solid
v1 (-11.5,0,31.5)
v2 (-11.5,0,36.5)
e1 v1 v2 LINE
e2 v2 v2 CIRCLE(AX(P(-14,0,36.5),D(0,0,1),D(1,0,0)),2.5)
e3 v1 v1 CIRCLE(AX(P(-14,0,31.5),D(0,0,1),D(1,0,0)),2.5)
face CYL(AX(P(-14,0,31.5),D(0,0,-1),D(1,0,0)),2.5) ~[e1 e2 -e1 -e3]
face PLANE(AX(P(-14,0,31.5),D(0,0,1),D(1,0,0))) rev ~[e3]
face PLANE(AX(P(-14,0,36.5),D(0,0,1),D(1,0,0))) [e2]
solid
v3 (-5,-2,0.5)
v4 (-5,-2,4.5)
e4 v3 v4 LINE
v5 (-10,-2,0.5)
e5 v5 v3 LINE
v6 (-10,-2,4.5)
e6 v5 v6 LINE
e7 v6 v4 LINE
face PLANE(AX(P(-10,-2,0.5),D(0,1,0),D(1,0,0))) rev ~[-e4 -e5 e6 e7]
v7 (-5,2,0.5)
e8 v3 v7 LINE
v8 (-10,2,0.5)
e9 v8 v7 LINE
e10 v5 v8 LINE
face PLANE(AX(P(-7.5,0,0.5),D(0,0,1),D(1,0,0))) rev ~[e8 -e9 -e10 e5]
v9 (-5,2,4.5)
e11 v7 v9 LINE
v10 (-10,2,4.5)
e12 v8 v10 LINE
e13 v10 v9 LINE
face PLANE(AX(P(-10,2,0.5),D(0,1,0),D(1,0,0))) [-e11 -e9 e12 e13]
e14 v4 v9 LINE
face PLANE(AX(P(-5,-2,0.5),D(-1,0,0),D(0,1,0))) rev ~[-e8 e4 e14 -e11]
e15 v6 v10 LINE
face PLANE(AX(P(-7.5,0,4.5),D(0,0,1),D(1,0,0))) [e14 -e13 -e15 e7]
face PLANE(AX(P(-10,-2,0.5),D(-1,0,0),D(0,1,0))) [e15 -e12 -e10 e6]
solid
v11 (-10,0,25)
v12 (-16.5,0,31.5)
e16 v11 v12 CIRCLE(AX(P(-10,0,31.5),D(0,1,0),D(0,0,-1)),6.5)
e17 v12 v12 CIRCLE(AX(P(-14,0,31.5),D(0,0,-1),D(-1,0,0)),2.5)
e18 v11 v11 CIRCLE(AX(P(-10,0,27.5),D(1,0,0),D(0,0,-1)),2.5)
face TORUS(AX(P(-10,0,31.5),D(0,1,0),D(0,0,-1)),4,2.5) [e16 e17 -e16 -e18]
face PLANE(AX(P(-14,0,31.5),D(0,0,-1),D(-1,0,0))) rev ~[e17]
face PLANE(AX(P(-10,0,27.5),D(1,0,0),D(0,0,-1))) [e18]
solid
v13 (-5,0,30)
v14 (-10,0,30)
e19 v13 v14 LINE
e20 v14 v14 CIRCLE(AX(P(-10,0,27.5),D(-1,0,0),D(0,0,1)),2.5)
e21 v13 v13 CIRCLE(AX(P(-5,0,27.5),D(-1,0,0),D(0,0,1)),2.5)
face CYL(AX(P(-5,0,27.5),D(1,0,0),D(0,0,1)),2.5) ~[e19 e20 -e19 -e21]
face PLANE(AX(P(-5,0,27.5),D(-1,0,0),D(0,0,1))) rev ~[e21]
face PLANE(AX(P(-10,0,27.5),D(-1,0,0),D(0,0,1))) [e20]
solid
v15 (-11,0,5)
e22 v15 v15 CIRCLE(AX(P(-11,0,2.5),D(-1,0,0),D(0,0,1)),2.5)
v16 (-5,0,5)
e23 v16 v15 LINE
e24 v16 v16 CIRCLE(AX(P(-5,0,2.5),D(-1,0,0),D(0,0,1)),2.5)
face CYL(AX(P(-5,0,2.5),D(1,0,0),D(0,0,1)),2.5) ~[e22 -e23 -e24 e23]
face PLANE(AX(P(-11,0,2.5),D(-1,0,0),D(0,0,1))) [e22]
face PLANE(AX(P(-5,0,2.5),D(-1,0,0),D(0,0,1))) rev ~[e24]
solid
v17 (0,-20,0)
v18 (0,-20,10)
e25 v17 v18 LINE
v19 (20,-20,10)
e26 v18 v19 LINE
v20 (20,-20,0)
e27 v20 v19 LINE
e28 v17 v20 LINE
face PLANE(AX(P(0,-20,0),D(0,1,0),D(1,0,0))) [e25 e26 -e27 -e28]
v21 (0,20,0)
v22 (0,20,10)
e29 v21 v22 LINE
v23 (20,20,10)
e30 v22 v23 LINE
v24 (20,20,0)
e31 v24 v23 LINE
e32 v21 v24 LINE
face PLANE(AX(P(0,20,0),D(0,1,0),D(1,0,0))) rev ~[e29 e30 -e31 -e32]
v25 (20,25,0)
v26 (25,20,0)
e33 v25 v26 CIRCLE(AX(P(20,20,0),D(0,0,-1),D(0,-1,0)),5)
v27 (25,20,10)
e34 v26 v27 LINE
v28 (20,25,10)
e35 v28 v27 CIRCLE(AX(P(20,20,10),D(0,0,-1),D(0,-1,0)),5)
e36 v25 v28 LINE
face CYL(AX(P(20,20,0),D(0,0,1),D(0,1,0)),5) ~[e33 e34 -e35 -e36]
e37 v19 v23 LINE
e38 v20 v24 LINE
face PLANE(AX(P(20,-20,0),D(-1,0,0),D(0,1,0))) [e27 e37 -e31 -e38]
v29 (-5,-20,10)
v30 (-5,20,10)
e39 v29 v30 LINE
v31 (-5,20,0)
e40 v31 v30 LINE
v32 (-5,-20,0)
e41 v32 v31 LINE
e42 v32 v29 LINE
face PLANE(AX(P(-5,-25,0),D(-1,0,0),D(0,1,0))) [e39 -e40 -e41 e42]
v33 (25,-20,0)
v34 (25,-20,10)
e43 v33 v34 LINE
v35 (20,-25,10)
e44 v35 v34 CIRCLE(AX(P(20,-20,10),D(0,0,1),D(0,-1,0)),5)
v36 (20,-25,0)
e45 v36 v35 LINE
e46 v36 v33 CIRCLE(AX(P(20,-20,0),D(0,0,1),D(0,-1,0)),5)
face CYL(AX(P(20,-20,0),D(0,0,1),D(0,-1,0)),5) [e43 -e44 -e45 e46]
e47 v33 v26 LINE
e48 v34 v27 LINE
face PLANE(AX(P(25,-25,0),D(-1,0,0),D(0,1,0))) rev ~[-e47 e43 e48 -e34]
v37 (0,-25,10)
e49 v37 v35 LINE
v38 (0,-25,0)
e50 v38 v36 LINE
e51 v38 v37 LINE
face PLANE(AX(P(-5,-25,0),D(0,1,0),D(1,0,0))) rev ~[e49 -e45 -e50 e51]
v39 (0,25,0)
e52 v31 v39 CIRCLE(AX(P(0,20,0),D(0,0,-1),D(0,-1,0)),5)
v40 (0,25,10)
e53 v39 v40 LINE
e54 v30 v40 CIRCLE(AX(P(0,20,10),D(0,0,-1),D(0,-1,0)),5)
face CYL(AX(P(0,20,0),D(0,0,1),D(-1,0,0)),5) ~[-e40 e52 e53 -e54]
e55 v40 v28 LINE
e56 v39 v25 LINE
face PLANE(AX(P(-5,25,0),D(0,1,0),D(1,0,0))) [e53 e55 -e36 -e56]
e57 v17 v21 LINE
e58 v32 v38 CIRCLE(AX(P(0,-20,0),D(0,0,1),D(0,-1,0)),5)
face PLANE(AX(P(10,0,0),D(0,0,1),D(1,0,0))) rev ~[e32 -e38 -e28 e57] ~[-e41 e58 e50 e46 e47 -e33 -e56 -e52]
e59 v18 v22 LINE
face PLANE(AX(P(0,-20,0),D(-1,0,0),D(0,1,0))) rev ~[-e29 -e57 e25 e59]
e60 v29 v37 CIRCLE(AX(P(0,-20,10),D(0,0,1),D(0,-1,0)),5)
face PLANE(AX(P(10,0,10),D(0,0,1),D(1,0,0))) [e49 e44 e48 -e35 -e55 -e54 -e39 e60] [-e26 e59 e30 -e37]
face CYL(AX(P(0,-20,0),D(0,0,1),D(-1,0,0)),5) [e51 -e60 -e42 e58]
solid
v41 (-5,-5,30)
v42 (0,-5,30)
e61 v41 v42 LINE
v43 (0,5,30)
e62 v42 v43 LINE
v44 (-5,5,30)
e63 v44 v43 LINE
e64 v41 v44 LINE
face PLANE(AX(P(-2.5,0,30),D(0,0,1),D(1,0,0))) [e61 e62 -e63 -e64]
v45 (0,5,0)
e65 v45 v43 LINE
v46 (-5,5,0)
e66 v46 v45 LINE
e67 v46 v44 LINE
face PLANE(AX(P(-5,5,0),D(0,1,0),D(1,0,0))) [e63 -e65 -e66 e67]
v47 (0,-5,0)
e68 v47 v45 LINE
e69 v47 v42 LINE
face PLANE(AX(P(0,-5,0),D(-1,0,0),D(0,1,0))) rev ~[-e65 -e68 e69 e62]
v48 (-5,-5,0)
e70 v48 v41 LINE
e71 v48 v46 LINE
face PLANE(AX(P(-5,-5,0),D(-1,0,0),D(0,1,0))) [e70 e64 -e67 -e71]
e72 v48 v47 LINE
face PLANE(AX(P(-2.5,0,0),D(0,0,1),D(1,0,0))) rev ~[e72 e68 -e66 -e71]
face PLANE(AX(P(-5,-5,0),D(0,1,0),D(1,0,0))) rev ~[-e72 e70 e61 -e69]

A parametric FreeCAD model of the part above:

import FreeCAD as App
import Part
import Sketcher
Q = App.Units.Quantity


def edges_at(feature, points):
    """Names of the edges that pass closest to the given points."""
    edges = feature.Shape.Edges
    near = lambda p: min(range(len(edges)), key=lambda i: edges[i].distToShape(Part.Vertex(*p))[0])
    return sorted({f"Edge{near(p) + 1}" for p in points})


def add_polygon(sketch, points):
    """Adds a closed chain of lines whose ends are joined by coincident constraints."""
    first, n = sketch.GeometryCount, len(points)
    for a, b in zip(points, points[1:] + points[:1]):
        sketch.addGeometry(Part.LineSegment(App.Vector(*a, 0), App.Vector(*b, 0)), False)
    for i in range(n):
        sketch.addConstraint(Sketcher.Constraint("Coincident", first + i, 2, first + (i + 1) % n, 1))

doc = App.newDocument("Part")
params = doc.addObject("Spreadsheet::Sheet", "Params")
for row, (alias, value) in enumerate([
    ("sketch1_diameter", "5 mm"),
    ("pad1_length", "6 mm"),
    ("sketch2_width", "5 mm"),
    ("sketch2_height", "10 mm"),
    ("pad2_length", "30 mm"),
    ("sketch3_diameter", "5 mm"),
    ("pad3_length", "5 mm"),
    ("sketch4_diameter", "5 mm"),
    ("sketch4_width", "10 mm"),
    ("revolution_angle", "90 deg"),
    ("sketch5_diameter", "5 mm"),
    ("pad4_length", "5 mm"),
    ("sketch6_width", "5 mm"),
    ("sketch6_height", "4 mm"),
    ("pad5_length", "4 mm"),
    ("sketch7_width", "20 mm"),
    ("sketch7_height", "40 mm"),
    ("pad6_length", "10 mm"),
    ("sketch8_width", "30 mm"),
    ("sketch8_height", "50 mm"),
    ("pad7_length", "10 mm"),
    ("fillet_radius", "5 mm"),
], start=1):
    params.set(f"A{row}", alias)
    params.set(f"B{row}", "=" + value)
    params.setAlias(f"B{row}", alias)

body = doc.addObject("PartDesign::Body", "Body")

sketch1 = body.newObject("Sketcher::SketchObject", "Sketch")
sketch1.AttachmentSupport = (doc.getObject("XY_Plane"), [""])
sketch1.MapMode = "FlatFace"
sketch1.addGeometry(Part.Circle(App.Vector(0, 0, 0), App.Vector(0, 0, 1), 2.5), False)
sketch1.addConstraint([
    Sketcher.Constraint("Coincident", 0, 3, -1, 1),
    Sketcher.Constraint("Diameter", 0, Q("5 mm")),
])
sketch1.setExpression("Constraints[1]", "Params.sketch1_diameter")
pad1 = body.newObject("PartDesign::Pad", "Pad")
pad1.Profile = sketch1
pad1.setExpression("Length", "Params.pad1_length")
body2 = doc.addObject("PartDesign::Body", "Body001")
doc.recompute()

body.Placement = App.Placement(App.Vector(0, 0, 0), App.Rotation(App.Vector(0, 1, 0), 270))
boolean = body2.newObject("PartDesign::Boolean", "Boolean")
boolean.Type = "Fuse"
boolean.addObjects([body])
body3 = doc.addObject("PartDesign::Body", "Body002")
doc.recompute()

body2.Placement = App.Placement(App.Vector(-5, 0, 2.5), App.Rotation(App.Vector(0, 0, 1), 0))
boolean2 = body3.newObject("PartDesign::Boolean", "Boolean001")
boolean2.Type = "Fuse"
boolean2.addObjects([body2])
body4 = doc.addObject("PartDesign::Body", "Body003")

sketch2 = body4.newObject("Sketcher::SketchObject", "Sketch001")
sketch2.AttachmentSupport = (doc.getObject("XY_Plane003"), [""])
sketch2.MapMode = "FlatFace"
add_polygon(sketch2, [(-5, 5), (-5, -5), (0, -5), (0, 5)])
sketch2.addConstraint([
    Sketcher.Constraint("Vertical", 0),
    Sketcher.Constraint("Horizontal", 1),
    Sketcher.Constraint("Vertical", 2),
    Sketcher.Constraint("Horizontal", 3),
    Sketcher.Constraint("Symmetric", 1, 2, 2, 2, -1, 1),
    Sketcher.Constraint("DistanceX", 1, 1, 1, 2, Q("5 mm")),
    Sketcher.Constraint("DistanceY", 0, 2, 0, 1, Q("10 mm")),
])
sketch2.setExpression("Constraints[9]", "Params.sketch2_width")
sketch2.setExpression("Constraints[10]", "Params.sketch2_height")
pad2 = body4.newObject("PartDesign::Pad", "Pad001")
pad2.Profile = sketch2
pad2.setExpression("Length", "Params.pad2_length")
body5 = doc.addObject("PartDesign::Body", "Body004")

sketch3 = body5.newObject("Sketcher::SketchObject", "Sketch002")
sketch3.AttachmentSupport = (doc.getObject("XY_Plane004"), [""])
sketch3.MapMode = "FlatFace"
sketch3.addGeometry(Part.Circle(App.Vector(0, 0, 0), App.Vector(0, 0, 1), 2.5), False)
sketch3.addConstraint([
    Sketcher.Constraint("Coincident", 0, 3, -1, 1),
    Sketcher.Constraint("Diameter", 0, Q("5 mm")),
])
sketch3.setExpression("Constraints[1]", "Params.sketch3_diameter")
pad3 = body5.newObject("PartDesign::Pad", "Pad002")
pad3.Profile = sketch3
pad3.setExpression("Length", "Params.pad3_length")
body6 = doc.addObject("PartDesign::Body", "Body005")
doc.recompute()

body5.Placement = App.Placement(App.Vector(0, 0, 0), App.Rotation(App.Vector(0, 1, 0), 270))
boolean3 = body6.newObject("PartDesign::Boolean", "Boolean002")
boolean3.Type = "Fuse"
boolean3.addObjects([body5])
body7 = doc.addObject("PartDesign::Body", "Body006")
doc.recompute()

body6.Placement = App.Placement(App.Vector(-5, 0, 27.5), App.Rotation(App.Vector(0, 0, 1), 0))
boolean4 = body7.newObject("PartDesign::Boolean", "Boolean003")
boolean4.Type = "Fuse"
boolean4.addObjects([body6])
body8 = doc.addObject("PartDesign::Body", "Body007")

sketch4 = body8.newObject("Sketcher::SketchObject", "Sketch003")
sketch4.AttachmentSupport = (doc.getObject("YZ_Plane007"), [""])
sketch4.MapMode = "FlatFace"
sketch4.AttachmentOffset = App.Placement(App.Vector(0, 0, -10), App.Rotation())
sketch4.addGeometry(Part.Circle(App.Vector(0, 27.5, 0), App.Vector(0, 0, 1), 2.5), False)
sketch4.addGeometry(Part.LineSegment(App.Vector(0, 31.5, 0), App.Vector(10, 31.5, 0)), True)
sketch4.addConstraint([
    Sketcher.Constraint("Horizontal", 1),
    Sketcher.Constraint("PointOnObject", 0, 3, -2),
    Sketcher.Constraint("PointOnObject", 1, 1, -2),
    Sketcher.Constraint("Diameter", 0, Q("5 mm")),
    Sketcher.Constraint("DistanceX", 1, 1, 1, 2, Q("10 mm")),
    Sketcher.Constraint("DistanceY", 0, 3, 1, 1, Q("4 mm")),
    Sketcher.Constraint("DistanceY", -1, 1, 0, 3, Q("27.5 mm")),
])
sketch4.setExpression("Constraints[3]", "Params.sketch4_diameter")
sketch4.setExpression("Constraints[4]", "Params.sketch4_width")
revolution = body8.newObject("PartDesign::Revolution", "Revolution")
revolution.Profile = sketch4
revolution.ReferenceAxis = (sketch4, ["Axis0"])
revolution.setExpression("Angle", "Params.revolution_angle")
body9 = doc.addObject("PartDesign::Body", "Body008")

sketch5 = body9.newObject("Sketcher::SketchObject", "Sketch004")
sketch5.AttachmentSupport = (doc.getObject("XY_Plane008"), [""])
sketch5.MapMode = "FlatFace"
sketch5.AttachmentOffset = App.Placement(App.Vector(0, 0, 31.5), App.Rotation())
sketch5.addGeometry(Part.Circle(App.Vector(-14, 0, 0), App.Vector(0, 0, 1), 2.5), False)
sketch5.addConstraint([
    Sketcher.Constraint("PointOnObject", 0, 3, -1),
    Sketcher.Constraint("Diameter", 0, Q("5 mm")),
    Sketcher.Constraint("DistanceX", 0, 3, -1, 1, Q("14 mm")),
])
sketch5.setExpression("Constraints[1]", "Params.sketch5_diameter")
pad4 = body9.newObject("PartDesign::Pad", "Pad003")
pad4.Profile = sketch5
pad4.setExpression("Length", "Params.pad4_length")
body10 = doc.addObject("PartDesign::Body", "Body009")

sketch6 = body10.newObject("Sketcher::SketchObject", "Sketch005")
sketch6.AttachmentSupport = (doc.getObject("XY_Plane009"), [""])
sketch6.MapMode = "FlatFace"
sketch6.AttachmentOffset = App.Placement(App.Vector(0, 0, 0.5), App.Rotation())
add_polygon(sketch6, [(-10, 2), (-10, -2), (-5, -2), (-5, 2)])
sketch6.addConstraint([
    Sketcher.Constraint("Vertical", 0),
    Sketcher.Constraint("Horizontal", 1),
    Sketcher.Constraint("Vertical", 2),
    Sketcher.Constraint("Horizontal", 3),
    Sketcher.Constraint("DistanceX", 1, 1, 1, 2, Q("5 mm")),
    Sketcher.Constraint("DistanceY", 0, 2, 0, 1, Q("4 mm")),
    Sketcher.Constraint("DistanceX", 0, 2, -1, 1, Q("10 mm")),
    Sketcher.Constraint("DistanceY", 0, 2, -1, 1, Q("2 mm")),
])
sketch6.setExpression("Constraints[8]", "Params.sketch6_width")
sketch6.setExpression("Constraints[9]", "Params.sketch6_height")
pad5 = body10.newObject("PartDesign::Pad", "Pad004")
pad5.Profile = sketch6
pad5.setExpression("Length", "Params.pad5_length")
body11 = doc.addObject("PartDesign::Body", "Body010")

sketch7 = body11.newObject("Sketcher::SketchObject", "Sketch006")
sketch7.AttachmentSupport = (doc.getObject("XY_Plane010"), [""])
sketch7.MapMode = "FlatFace"
add_polygon(sketch7, [(0, 20), (0, -20), (20, -20), (20, 20)])
sketch7.addConstraint([
    Sketcher.Constraint("Vertical", 0),
    Sketcher.Constraint("Horizontal", 1),
    Sketcher.Constraint("Vertical", 2),
    Sketcher.Constraint("Horizontal", 3),
    Sketcher.Constraint("Symmetric", 0, 2, 3, 2, -1, 1),
    Sketcher.Constraint("DistanceX", 1, 1, 1, 2, Q("20 mm")),
    Sketcher.Constraint("DistanceY", 0, 2, 0, 1, Q("40 mm")),
])
sketch7.setExpression("Constraints[9]", "Params.sketch7_width")
sketch7.setExpression("Constraints[10]", "Params.sketch7_height")
pad6 = body11.newObject("PartDesign::Pad", "Pad005")
pad6.Profile = sketch7
pad6.setExpression("Length", "Params.pad6_length")
body12 = doc.addObject("PartDesign::Body", "Body011")

sketch8 = body12.newObject("Sketcher::SketchObject", "Sketch007")
sketch8.AttachmentSupport = (doc.getObject("XY_Plane011"), [""])
sketch8.MapMode = "FlatFace"
add_polygon(sketch8, [(-5, 25), (-5, -25), (25, -25), (25, 25)])
sketch8.addConstraint([
    Sketcher.Constraint("Vertical", 0),
    Sketcher.Constraint("Horizontal", 1),
    Sketcher.Constraint("Vertical", 2),
    Sketcher.Constraint("Horizontal", 3),
    Sketcher.Constraint("DistanceX", 1, 1, 1, 2, Q("30 mm")),
    Sketcher.Constraint("DistanceY", 0, 2, 0, 1, Q("50 mm")),
    Sketcher.Constraint("DistanceX", 0, 2, -1, 1, Q("5 mm")),
    Sketcher.Constraint("DistanceY", 0, 2, -1, 1, Q("25 mm")),
])
sketch8.setExpression("Constraints[8]", "Params.sketch8_width")
sketch8.setExpression("Constraints[9]", "Params.sketch8_height")
pad7 = body12.newObject("PartDesign::Pad", "Pad006")
pad7.Profile = sketch8
pad7.setExpression("Length", "Params.pad7_length")
doc.recompute()

boolean5 = body12.newObject("PartDesign::Boolean", "Boolean004")
boolean5.Type = "Cut"
boolean5.addObjects([body11])
doc.recompute()

fillet = body12.newObject("PartDesign::Fillet", "Fillet")
fillet.Base = (boolean5, edges_at(boolean5, [
    (-5, -25, 5),
    (-5, 25, 5),
    (25, -25, 5),
    (25, 25, 5),
]))
fillet.setExpression("Radius", "Params.fillet_radius")

doc.recompute()
